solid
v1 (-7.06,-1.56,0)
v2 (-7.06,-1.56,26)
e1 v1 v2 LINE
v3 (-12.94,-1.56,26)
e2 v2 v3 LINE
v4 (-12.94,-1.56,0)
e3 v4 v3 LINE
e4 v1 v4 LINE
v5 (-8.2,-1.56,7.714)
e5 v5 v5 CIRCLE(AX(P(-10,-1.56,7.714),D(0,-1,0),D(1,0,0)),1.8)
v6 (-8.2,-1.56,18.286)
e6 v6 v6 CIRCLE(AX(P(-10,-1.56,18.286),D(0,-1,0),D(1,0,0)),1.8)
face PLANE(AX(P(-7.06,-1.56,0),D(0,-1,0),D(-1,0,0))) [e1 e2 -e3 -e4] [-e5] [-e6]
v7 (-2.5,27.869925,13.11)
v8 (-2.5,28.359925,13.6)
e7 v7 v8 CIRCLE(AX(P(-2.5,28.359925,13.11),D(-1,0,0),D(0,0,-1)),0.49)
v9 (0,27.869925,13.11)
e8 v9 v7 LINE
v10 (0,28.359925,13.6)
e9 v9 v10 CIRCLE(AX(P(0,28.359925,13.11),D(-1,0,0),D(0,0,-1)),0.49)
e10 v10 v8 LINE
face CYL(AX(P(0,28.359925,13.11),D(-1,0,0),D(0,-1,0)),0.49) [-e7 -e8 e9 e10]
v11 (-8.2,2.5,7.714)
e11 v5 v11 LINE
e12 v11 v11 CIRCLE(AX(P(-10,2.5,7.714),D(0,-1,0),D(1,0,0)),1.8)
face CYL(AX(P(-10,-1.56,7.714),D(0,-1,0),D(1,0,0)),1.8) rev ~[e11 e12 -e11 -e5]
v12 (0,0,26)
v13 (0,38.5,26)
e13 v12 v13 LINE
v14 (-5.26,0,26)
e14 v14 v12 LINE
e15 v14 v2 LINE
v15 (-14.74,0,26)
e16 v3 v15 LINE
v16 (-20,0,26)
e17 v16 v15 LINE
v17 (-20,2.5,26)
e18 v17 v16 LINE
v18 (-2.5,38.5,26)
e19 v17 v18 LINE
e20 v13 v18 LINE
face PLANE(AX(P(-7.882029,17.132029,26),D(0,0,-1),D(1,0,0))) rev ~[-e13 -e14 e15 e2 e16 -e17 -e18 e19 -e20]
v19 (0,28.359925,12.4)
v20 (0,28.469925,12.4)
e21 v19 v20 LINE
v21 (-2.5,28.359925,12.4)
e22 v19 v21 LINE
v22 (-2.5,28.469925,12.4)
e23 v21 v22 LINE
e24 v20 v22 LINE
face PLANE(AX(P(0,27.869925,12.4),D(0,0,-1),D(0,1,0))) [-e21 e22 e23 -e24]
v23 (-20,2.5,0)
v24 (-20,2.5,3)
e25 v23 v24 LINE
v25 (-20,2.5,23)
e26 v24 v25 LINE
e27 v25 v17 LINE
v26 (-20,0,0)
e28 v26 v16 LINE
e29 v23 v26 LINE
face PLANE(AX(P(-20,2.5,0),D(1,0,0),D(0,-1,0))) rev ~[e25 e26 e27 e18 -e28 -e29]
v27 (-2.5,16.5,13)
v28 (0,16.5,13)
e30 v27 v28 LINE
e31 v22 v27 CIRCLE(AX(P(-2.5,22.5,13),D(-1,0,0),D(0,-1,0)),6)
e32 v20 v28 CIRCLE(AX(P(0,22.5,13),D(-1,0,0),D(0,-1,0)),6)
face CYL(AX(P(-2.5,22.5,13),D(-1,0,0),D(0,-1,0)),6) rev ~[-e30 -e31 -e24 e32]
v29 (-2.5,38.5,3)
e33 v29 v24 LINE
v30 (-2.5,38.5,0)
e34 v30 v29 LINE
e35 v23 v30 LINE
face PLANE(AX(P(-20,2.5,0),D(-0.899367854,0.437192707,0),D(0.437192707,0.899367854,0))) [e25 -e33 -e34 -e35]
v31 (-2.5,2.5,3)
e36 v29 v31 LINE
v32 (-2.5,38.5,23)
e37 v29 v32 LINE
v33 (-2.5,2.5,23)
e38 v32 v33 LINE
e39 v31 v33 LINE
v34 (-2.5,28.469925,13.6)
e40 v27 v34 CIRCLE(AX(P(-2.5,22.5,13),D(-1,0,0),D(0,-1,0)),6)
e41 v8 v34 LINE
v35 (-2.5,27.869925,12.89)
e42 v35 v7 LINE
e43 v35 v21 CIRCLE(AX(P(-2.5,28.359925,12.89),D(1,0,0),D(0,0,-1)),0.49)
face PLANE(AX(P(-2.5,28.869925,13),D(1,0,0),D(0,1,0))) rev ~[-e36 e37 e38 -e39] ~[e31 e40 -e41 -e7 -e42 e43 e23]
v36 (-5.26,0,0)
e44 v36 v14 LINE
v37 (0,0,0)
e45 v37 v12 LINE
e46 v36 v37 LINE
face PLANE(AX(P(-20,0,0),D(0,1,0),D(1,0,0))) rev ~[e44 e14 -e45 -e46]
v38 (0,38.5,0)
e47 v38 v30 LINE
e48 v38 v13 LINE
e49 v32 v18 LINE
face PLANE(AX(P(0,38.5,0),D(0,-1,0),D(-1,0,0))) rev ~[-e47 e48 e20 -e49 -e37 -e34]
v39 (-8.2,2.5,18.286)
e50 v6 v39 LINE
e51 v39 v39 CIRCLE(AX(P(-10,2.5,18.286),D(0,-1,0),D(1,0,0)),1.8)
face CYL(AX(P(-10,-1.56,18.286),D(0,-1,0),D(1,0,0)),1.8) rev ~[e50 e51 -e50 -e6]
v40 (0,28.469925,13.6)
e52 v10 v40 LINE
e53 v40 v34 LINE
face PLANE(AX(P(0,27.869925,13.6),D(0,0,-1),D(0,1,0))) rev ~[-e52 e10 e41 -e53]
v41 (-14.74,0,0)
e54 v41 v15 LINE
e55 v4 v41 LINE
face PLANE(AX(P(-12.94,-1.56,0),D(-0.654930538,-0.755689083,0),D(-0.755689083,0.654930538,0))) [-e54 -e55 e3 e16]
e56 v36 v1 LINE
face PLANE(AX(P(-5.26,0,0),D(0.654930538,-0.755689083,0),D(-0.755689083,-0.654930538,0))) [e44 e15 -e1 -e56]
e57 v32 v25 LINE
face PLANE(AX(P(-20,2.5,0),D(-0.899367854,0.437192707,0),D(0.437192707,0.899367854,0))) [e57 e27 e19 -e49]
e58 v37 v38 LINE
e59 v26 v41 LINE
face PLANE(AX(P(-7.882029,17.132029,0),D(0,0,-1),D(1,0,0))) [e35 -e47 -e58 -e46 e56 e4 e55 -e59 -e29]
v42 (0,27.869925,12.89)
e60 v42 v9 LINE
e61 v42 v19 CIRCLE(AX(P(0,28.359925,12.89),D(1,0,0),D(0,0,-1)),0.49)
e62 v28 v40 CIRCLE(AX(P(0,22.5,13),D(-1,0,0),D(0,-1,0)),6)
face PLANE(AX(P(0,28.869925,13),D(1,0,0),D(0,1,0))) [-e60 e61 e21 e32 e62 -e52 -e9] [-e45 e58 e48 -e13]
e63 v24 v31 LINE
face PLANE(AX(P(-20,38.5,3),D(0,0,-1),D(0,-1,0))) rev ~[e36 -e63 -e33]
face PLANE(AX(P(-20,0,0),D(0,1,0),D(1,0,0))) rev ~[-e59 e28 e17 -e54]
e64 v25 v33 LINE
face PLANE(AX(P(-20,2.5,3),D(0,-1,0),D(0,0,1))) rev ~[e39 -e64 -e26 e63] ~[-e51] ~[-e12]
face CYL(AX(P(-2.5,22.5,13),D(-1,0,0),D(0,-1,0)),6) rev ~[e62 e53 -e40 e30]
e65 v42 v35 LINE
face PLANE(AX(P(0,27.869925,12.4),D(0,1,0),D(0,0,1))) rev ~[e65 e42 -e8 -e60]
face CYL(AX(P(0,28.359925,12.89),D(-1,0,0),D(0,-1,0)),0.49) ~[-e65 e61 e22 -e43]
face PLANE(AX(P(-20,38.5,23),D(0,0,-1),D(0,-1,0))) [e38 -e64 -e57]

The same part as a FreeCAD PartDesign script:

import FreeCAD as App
import Part
import Sketcher

V = App.Vector


def edges_at(feature, points):
    """Names of the edges that pass closest to the given points."""
    edges = feature.Shape.Edges
    near = lambda p: min(range(len(edges)), key=lambda i: edges[i].distToShape(Part.Vertex(*p))[0])
    return sorted({f"Edge{near(p) + 1}" for p in points})


def add_polygon(sketch, points):
    """Adds a closed chain of lines whose ends are joined by coincident constraints."""
    first, n = sketch.GeometryCount, len(points)
    for a, b in zip(points, points[1:] + points[:1]):
        sketch.addGeometry(Part.LineSegment(App.Vector(*a, 0), App.Vector(*b, 0)), False)
    for i in range(n):
        sketch.addConstraint(Sketcher.Constraint("Coincident", first + i, 2, first + (i + 1) % n, 1))

doc = App.newDocument("Part")
body = doc.addObject("PartDesign::Body", "Body")

# Sketch on XY plane
sketch1 = body.newObject("Sketcher::SketchObject", "Sketch")
sketch1.AttachmentSupport = (doc.getObject("XY_Plane"), [""])
sketch1.MapMode = "FlatFace"
add_polygon(sketch1, [(0, 0), (0, 38.5), (-2.5, 38.5), (-2.5, 2.5), (-20, 2.5), (-20, 0)])  # lines 0-5
sketch1.addConstraint(Sketcher.Constraint("Vertical", 0))
sketch1.addConstraint(Sketcher.Constraint("Horizontal", 1))
sketch1.addConstraint(Sketcher.Constraint("Vertical", 2))
sketch1.addConstraint(Sketcher.Constraint("Horizontal", 3))
sketch1.addConstraint(Sketcher.Constraint("Vertical", 4))
sketch1.addConstraint(Sketcher.Constraint("Horizontal", 5))
sketch1.addConstraint(Sketcher.Constraint("Coincident", 5, 2, -1, 1))
sketch1.addConstraint(Sketcher.Constraint("Equal", 1, 4))
sketch1.addConstraint(Sketcher.Constraint("DistanceX", 5, 1, 5, 2, 20.0))
sketch1.addConstraint(Sketcher.Constraint("DistanceY", 2, 2, 2, 1, 36.0))
sketch1.addConstraint(Sketcher.Constraint("DistanceX", 1, 2, 1, 1, 2.5))
pad1 = body.newObject("PartDesign::Pad", "Pad")
pad1.Profile = sketch1
pad1.Length = 26

# Sketch on XY plane
sketch2 = body.newObject("Sketcher::SketchObject", "Sketch001")
sketch2.AttachmentSupport = (doc.getObject("XY_Plane"), [""])
sketch2.MapMode = "FlatFace"
add_polygon(sketch2, [(-20, 2.5), (-2.5, 38.5), (-2.5, 2.5)])  # lines 0-2
sketch2.addConstraint(Sketcher.Constraint("Vertical", 1))
sketch2.addConstraint(Sketcher.Constraint("Horizontal", 2))
sketch2.addConstraint(Sketcher.Constraint("DistanceY", 1, 2, 1, 1, 36.0))
sketch2.addConstraint(Sketcher.Constraint("DistanceX", 2, 2, 2, 1, 17.5))
sketch2.addConstraint(Sketcher.Constraint("DistanceX", 2, 2, -1, 1, 20.0))
sketch2.addConstraint(Sketcher.Constraint("DistanceY", -1, 1, 0, 2, 38.5))
pad2 = body.newObject("PartDesign::Pad", "Pad001")
pad2.Profile = sketch2
pad2.Length = 26

# Sketch on YZ plane
sketch3 = body.newObject("Sketcher::SketchObject", "Sketch002")
sketch3.AttachmentSupport = (doc.getObject("YZ_Plane"), [""])
sketch3.MapMode = "FlatFace"
sketch3.AttachmentOffset = App.Placement(V(0, 0, -20), App.Rotation())
add_polygon(sketch3, [(38.5, 23), (38.5, 3), (2.5, 3), (2.5, 23)])  # lines 0-3
sketch3.addConstraint(Sketcher.Constraint("Vertical", 0))
sketch3.addConstraint(Sketcher.Constraint("Horizontal", 1))
sketch3.addConstraint(Sketcher.Constraint("Vertical", 2))
sketch3.addConstraint(Sketcher.Constraint("Horizontal", 3))
sketch3.addConstraint(Sketcher.Constraint("DistanceX", 1, 2, 1, 1, 36.0))
sketch3.addConstraint(Sketcher.Constraint("DistanceY", 0, 2, 0, 1, 20.0))
sketch3.addConstraint(Sketcher.Constraint("DistanceY", -1, 1, 0, 2, 3.0))
sketch3.addConstraint(Sketcher.Constraint("DistanceX", -1, 1, 0, 2, 38.5))
pocket1 = body.newObject("PartDesign::Pocket", "Pocket")
pocket1.Profile = sketch3
pocket1.Length = 17.5
pocket1.Reversed = True

# Sketch on XY plane
sketch4 = body.newObject("Sketcher::SketchObject", "Sketch003")
sketch4.AttachmentSupport = (doc.getObject("XY_Plane"), [""])
sketch4.MapMode = "FlatFace"
add_polygon(sketch4, [(-14.74, 0), (-5.26, 0), (-7.06, -1.56), (-12.94, -1.56)])  # lines 0-3
sketch4.addConstraint(Sketcher.Constraint("Horizontal", 0))
sketch4.addConstraint(Sketcher.Constraint("Horizontal", 2))
sketch4.addConstraint(Sketcher.Constraint("PointOnObject", 0, 2, -1))
sketch4.addConstraint(Sketcher.Constraint("Equal", 1, 3))
sketch4.addConstraint(Sketcher.Constraint("DistanceX", 0, 1, 0, 2, 9.48))
sketch4.addConstraint(Sketcher.Constraint("DistanceX", 2, 2, 2, 1, 5.88))
sketch4.addConstraint(Sketcher.Constraint("DistanceX", 0, 2, -1, 1, 5.26))
sketch4.addConstraint(Sketcher.Constraint("DistanceY", 1, 2, -1, 1, 1.56))
pad3 = body.newObject("PartDesign::Pad", "Pad002")
pad3.Profile = sketch4
pad3.Length = 26

# Sketch on XZ plane
sketch5 = body.newObject("Sketcher::SketchObject", "Sketch004")
sketch5.AttachmentSupport = (doc.getObject("XZ_Plane"), [""])
sketch5.MapMode = "FlatFace"
sketch5.AttachmentOffset = App.Placement(V(0, 0, 1.56), App.Rotation())
sketch5.addGeometry(Part.Circle(V(-10, 18.286, 0), V(0, 0, 1), 1.8), False)
sketch5.addGeometry(Part.Circle(V(-10, 7.714, 0), V(0, 0, 1), 1.8), False)
sketch5.addConstraint(Sketcher.Constraint("Equal", 0, 1))
sketch5.addConstraint(Sketcher.Constraint("Vertical", 0, 3, 1, 3))
sketch5.addConstraint(Sketcher.Constraint("Diameter", 0, 3.6))
sketch5.addConstraint(Sketcher.Constraint("DistanceX", 0, 3, -1, 1, 10.0))
sketch5.addConstraint(Sketcher.Constraint("DistanceY", -1, 1, 0, 3, 18.286))
sketch5.addConstraint(Sketcher.Constraint("DistanceY", -1, 1, 1, 3, 7.714))
pocket2 = body.newObject("PartDesign::Pocket", "Pocket001")
pocket2.Profile = sketch5
pocket2.Type = "ThroughAll"

# Sketch on YZ plane
sketch6 = body.newObject("Sketcher::SketchObject", "Sketch005")
sketch6.AttachmentSupport = (doc.getObject("YZ_Plane"), [""])
sketch6.MapMode = "FlatFace"
sketch6.AttachmentOffset = App.Placement(V(0, 0, -2.5), App.Rotation())
sketch6.addGeometry(Part.Circle(V(22.5, 13, 0), V(0, 0, 1), 6), False)
sketch6.addConstraint(Sketcher.Constraint("Diameter", 0, 12.0))
sketch6.addConstraint(Sketcher.Constraint("DistanceY", -1, 1, 0, 3, 13.0))
sketch6.addConstraint(Sketcher.Constraint("DistanceX", -1, 1, 0, 3, 22.5))
pocket3 = body.newObject("PartDesign::Pocket", "Pocket002")
pocket3.Profile = sketch6
pocket3.Type = "ThroughAll"
pocket3.Reversed = True

# Sketch on YZ plane
sketch7 = body.newObject("Sketcher::SketchObject", "Sketch006")
sketch7.AttachmentSupport = (doc.getObject("YZ_Plane"), [""])
sketch7.MapMode = "FlatFace"
add_polygon(sketch7, [(27.869925, 13.6), (27.869925, 12.4), (29.869925, 12.4), (29.869925, 13.6)])  # lines 0-3
sketch7.addConstraint(Sketcher.Constraint("Vertical", 0))
sketch7.addConstraint(Sketcher.Constraint("Horizontal", 1))
sketch7.addConstraint(Sketcher.Constraint("Vertical", 2))
sketch7.addConstraint(Sketcher.Constraint("Horizontal", 3))
sketch7.addConstraint(Sketcher.Constraint("DistanceX", 1, 1, 1, 2, 2.0))
sketch7.addConstraint(Sketcher.Constraint("DistanceY", 0, 2, 0, 1, 1.2))
sketch7.addConstraint(Sketcher.Constraint("DistanceY", -1, 1, 0, 2, 12.4))
sketch7.addConstraint(Sketcher.Constraint("DistanceX", -1, 1, 0, 2, 27.869925))
pad4 = body.newObject("PartDesign::Pad", "Pad003")
pad4.Profile = sketch7
pad4.Length = 2.5
pad4.Reversed = True
doc.recompute()

fillet = body.newObject("PartDesign::Fillet", "Fillet")
fillet.Base = (pad4, edges_at(pad4, [(-1.25, 27.87, 12.4), (-1.25, 27.87, 13.6)]))
fillet.Radius = 0.49

doc.recompute()
